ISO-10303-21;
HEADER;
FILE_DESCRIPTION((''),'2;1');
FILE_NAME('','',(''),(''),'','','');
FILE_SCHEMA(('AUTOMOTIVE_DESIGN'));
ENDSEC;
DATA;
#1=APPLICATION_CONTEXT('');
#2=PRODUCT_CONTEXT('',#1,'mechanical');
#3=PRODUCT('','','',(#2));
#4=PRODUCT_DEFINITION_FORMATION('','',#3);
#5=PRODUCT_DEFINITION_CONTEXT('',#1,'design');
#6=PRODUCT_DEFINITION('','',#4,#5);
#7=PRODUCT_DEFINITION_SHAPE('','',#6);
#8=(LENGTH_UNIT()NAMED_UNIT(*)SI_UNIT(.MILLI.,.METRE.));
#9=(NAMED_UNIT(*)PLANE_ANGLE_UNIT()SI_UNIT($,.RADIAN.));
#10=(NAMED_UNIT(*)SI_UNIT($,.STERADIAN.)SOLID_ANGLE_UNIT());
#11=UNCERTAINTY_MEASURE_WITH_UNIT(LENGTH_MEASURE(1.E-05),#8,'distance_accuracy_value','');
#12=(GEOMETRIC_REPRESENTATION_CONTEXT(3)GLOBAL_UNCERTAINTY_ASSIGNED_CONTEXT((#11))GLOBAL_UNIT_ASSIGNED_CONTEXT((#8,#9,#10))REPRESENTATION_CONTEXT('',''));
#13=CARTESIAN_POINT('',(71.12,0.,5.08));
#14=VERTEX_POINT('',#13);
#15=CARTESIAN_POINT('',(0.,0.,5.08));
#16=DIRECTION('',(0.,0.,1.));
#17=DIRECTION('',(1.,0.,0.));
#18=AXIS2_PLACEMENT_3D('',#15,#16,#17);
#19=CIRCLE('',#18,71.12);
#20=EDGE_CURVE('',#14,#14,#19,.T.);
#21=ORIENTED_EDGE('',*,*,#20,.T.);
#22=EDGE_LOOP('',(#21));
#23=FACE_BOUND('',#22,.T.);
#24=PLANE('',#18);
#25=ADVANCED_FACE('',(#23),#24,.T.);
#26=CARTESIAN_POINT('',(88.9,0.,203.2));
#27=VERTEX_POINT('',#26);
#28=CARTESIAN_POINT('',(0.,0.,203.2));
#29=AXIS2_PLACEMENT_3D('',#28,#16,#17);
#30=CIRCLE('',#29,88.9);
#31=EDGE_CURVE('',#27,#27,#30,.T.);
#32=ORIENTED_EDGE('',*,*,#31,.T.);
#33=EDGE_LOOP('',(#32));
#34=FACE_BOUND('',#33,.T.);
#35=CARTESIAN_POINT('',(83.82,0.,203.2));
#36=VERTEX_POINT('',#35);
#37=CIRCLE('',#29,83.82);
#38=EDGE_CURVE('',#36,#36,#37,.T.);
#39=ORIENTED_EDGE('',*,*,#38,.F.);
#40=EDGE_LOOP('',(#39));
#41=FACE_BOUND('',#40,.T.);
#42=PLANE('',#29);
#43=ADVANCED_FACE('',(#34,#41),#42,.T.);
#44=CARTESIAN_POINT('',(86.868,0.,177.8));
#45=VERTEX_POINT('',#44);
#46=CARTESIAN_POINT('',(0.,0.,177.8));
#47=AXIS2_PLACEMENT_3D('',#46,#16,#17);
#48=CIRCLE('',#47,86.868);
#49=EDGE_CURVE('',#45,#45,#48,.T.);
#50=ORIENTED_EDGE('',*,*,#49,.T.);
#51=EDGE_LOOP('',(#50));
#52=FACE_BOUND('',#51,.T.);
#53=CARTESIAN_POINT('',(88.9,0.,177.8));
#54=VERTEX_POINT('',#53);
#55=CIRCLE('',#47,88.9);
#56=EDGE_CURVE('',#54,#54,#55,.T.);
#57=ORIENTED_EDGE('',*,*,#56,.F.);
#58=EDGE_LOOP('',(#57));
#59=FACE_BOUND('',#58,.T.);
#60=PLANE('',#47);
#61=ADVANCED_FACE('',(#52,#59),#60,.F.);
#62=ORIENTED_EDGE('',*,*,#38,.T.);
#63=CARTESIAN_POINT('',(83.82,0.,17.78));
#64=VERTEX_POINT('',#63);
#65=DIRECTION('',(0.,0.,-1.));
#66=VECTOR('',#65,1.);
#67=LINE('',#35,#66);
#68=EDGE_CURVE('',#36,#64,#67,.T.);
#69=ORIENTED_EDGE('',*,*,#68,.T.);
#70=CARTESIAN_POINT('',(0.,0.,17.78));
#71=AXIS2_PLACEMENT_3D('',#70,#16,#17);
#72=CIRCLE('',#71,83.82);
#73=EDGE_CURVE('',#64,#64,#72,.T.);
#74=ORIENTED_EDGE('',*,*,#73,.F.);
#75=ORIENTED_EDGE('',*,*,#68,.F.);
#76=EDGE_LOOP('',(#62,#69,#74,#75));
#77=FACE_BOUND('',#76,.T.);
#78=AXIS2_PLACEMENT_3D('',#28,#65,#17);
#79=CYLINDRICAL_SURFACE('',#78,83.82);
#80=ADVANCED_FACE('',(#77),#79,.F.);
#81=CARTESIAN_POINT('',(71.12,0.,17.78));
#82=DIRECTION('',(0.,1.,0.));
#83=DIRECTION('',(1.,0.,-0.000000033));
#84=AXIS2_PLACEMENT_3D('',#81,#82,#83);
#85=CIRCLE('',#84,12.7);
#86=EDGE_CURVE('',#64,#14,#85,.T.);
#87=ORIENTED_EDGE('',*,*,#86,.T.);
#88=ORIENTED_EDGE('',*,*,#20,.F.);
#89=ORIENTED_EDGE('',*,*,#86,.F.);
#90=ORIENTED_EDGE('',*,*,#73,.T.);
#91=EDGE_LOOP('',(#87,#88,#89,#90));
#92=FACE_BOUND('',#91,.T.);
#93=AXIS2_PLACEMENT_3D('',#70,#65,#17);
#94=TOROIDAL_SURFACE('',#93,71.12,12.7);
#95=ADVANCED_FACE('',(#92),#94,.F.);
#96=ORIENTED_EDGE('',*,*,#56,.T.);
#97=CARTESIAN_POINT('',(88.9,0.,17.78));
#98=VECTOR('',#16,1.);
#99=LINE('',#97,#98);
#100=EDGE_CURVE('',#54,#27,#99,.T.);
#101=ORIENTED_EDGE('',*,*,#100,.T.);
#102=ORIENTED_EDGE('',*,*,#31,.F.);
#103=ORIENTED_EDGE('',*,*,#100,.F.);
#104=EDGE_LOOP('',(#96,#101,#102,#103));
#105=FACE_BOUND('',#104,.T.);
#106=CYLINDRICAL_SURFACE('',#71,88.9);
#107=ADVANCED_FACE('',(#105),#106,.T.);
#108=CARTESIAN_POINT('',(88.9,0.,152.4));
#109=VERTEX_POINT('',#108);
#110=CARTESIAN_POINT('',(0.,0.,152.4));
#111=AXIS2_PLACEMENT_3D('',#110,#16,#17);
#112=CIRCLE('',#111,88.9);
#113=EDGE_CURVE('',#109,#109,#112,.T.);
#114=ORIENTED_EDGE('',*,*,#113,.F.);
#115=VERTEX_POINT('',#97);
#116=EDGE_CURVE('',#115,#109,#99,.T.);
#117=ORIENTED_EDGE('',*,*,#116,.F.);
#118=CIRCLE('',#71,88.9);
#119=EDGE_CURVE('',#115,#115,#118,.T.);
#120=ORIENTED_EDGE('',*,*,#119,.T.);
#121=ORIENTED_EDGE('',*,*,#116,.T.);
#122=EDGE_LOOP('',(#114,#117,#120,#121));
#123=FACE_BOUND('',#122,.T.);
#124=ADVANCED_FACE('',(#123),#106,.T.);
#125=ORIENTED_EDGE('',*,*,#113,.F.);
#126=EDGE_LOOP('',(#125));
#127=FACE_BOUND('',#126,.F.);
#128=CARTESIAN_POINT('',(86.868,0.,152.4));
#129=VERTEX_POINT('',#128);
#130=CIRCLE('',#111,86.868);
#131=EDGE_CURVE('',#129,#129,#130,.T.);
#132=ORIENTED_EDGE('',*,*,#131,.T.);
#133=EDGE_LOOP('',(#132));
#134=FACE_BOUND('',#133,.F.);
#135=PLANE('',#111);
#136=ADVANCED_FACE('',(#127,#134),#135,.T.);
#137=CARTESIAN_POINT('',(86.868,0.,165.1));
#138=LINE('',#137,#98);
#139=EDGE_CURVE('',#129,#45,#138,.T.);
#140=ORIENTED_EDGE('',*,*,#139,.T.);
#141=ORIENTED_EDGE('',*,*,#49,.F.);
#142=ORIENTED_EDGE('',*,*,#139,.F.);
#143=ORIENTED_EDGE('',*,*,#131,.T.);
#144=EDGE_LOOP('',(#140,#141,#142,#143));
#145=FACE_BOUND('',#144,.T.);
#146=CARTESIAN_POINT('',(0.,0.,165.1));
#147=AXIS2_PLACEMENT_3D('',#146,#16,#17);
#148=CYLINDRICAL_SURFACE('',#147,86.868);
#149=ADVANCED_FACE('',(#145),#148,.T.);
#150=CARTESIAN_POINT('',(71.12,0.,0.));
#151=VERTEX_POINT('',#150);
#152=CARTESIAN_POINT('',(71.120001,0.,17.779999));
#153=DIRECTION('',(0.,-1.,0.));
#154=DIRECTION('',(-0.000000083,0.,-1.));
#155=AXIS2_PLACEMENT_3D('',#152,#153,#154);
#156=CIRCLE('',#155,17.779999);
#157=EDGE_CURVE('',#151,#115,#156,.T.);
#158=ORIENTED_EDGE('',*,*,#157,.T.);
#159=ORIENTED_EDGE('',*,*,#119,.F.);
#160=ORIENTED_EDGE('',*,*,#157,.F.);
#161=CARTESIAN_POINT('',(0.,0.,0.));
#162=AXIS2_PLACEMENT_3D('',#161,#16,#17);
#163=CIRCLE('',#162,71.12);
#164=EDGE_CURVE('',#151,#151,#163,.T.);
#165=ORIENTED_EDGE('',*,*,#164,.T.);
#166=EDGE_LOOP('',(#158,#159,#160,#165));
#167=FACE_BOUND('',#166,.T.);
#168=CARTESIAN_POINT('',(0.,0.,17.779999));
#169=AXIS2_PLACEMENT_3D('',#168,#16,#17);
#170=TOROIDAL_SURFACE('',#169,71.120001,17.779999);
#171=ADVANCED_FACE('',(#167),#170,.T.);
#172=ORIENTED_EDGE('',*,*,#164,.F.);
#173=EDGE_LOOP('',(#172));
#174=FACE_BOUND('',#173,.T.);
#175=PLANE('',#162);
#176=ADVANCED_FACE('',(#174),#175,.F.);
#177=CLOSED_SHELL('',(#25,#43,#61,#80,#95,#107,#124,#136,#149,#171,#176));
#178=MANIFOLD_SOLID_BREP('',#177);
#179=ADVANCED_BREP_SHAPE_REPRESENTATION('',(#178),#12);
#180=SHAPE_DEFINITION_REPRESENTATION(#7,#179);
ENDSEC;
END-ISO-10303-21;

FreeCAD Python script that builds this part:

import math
import FreeCAD as App
import Part
import Sketcher

V = App.Vector
Q = App.Units.Quantity


def add_polygon(sketch, points):
    """Adds a closed chain of lines whose ends are joined by coincident constraints."""
    first, n = sketch.GeometryCount, len(points)
    for a, b in zip(points, points[1:] + points[:1]):
        sketch.addGeometry(Part.LineSegment(App.Vector(*a, 0), App.Vector(*b, 0)), False)
    for i in range(n):
        sketch.addConstraint(Sketcher.Constraint("Coincident", first + i, 2, first + (i + 1) % n, 1))

doc = App.newDocument("Part")
body = doc.addObject("PartDesign::Body", "Body")

# Sketch on XZ plane
sketch1 = body.newObject("Sketcher::SketchObject", "Sketch")
sketch1.AttachmentSupport = (doc.getObject("XZ_Plane"), [""])
sketch1.MapMode = "FlatFace"
sketch1.addGeometry([
    Part.LineSegment(V(0, 5, 0), V(0, 0, 0)),  # 0
    Part.LineSegment(V(0, 0, 0), V(71, 0, 0)),  # 1
    Part.ArcOfCircle(Part.Circle(V(71, 18, 0), V(0, 0, 1), 18), math.radians(-90), math.radians(0)),  # 2
    Part.LineSegment(V(89, 18, 0), V(89, 203, 0)),  # 3
    Part.LineSegment(V(89, 203, 0), V(84, 203, 0)),  # 4
    Part.LineSegment(V(84, 203, 0), V(84, 18, 0)),  # 5
    Part.ArcOfCircle(Part.Circle(V(71, 18, 0), V(0, 0, 1), 13), math.radians(-90), math.radians(0)),  # 6
    Part.LineSegment(V(71, 5, 0), V(0, 5, 0)),  # 7
], False)
sketch1.addConstraint([
    Sketcher.Constraint("Coincident", 0, 2, 1, 1),
    Sketcher.Constraint("Tangent", 1, 2, 2, 1),
    Sketcher.Constraint("Tangent", 2, 2, 3, 1),
    Sketcher.Constraint("Coincident", 3, 2, 4, 1),
    Sketcher.Constraint("Coincident", 4, 2, 5, 1),
    Sketcher.Constraint("Tangent", 5, 2, 6, 2),
    Sketcher.Constraint("Tangent", 6, 1, 7, 1),
    Sketcher.Constraint("Coincident", 7, 2, 0, 1),
    Sketcher.Constraint("Vertical", 0),
    Sketcher.Constraint("Horizontal", 1),
    Sketcher.Constraint("Vertical", 3),
    Sketcher.Constraint("Horizontal", 4),
    Sketcher.Constraint("Vertical", 5),
    Sketcher.Constraint("Horizontal", 7),
    Sketcher.Constraint("Coincident", 0, 2, -1, 1),
    Sketcher.Constraint("Coincident", 6, 3, 2, 3),
    Sketcher.Constraint("Radius", 2, Q("0.6999999 in")),
    Sketcher.Constraint("Radius", 6, Q("0.5 in")),
    Sketcher.Constraint("DistanceX", 1, 1, 1, 2, Q("2.8 in")),
    Sketcher.Constraint("DistanceY", 3, 1, 3, 2, Q("7.3 in")),
])
revolution = body.newObject("PartDesign::Revolution", "Revolution")
revolution.Profile = sketch1
revolution.ReferenceAxis = (sketch1, ["V_Axis"])
revolution.Angle = 360

# Sketch on XZ plane
sketch2 = body.newObject("Sketcher::SketchObject", "Sketch001")
sketch2.AttachmentSupport = (doc.getObject("XZ_Plane"), [""])
sketch2.MapMode = "FlatFace"
add_polygon(sketch2, [(86.9, 177.8), (86.9, 152.4), (88.9, 152.4), (88.9, 177.8)])  # lines 0-3
sketch2.addConstraint([
    Sketcher.Constraint("Vertical", 0),
    Sketcher.Constraint("Horizontal", 1),
    Sketcher.Constraint("Vertical", 2),
    Sketcher.Constraint("Horizontal", 3),
    Sketcher.Constraint("DistanceY", 0, 2, 0, 1, Q("1 in")),
    Sketcher.Constraint("DistanceY", -1, 1, 0, 2, Q("6 in")),
    Sketcher.Constraint("DistanceX", 1, 1, 1, 2, Q("0.08 in")),
    Sketcher.Constraint("DistanceX", -1, 1, 1, 2, Q("3.5 in")),
])
groove = body.newObject("PartDesign::Groove", "Groove")
groove.Profile = sketch2
groove.ReferenceAxis = (sketch2, ["V_Axis"])
groove.Angle = 360

doc.recompute()
